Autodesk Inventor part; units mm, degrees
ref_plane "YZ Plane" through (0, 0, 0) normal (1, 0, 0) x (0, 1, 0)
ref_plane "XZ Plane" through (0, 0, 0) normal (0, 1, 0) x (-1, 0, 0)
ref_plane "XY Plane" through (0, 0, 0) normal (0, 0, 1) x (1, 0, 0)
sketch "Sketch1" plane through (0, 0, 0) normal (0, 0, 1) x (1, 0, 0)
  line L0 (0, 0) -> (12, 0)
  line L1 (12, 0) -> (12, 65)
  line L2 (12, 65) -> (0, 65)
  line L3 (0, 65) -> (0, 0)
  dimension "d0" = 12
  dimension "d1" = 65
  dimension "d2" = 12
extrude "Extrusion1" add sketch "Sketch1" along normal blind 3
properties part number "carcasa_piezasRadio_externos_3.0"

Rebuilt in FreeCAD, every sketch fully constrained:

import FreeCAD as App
import Part
import Sketcher
from FreeCAD import Vector
Q = App.Units.Quantity

doc = App.newDocument("Part")
body = doc.addObject("PartDesign::Body", "Body")

# Sketch on XY plane
sketch1 = body.newObject("Sketcher::SketchObject", "Sketch")
sketch1.AttachmentSupport = (doc.getObject("XY_Plane"), [""])
sketch1.MapMode = "FlatFace"
sketch1.addGeometry(Part.LineSegment(Vector(0, 65, 0), Vector(0, 0, 0)), False)
sketch1.addGeometry(Part.LineSegment(Vector(0, 0, 0), Vector(12, 0, 0)), False)
sketch1.addGeometry(Part.LineSegment(Vector(12, 0, 0), Vector(12, 65, 0)), False)
sketch1.addGeometry(Part.LineSegment(Vector(12, 65, 0), Vector(0, 65, 0)), False)
sketch1.addConstraint(Sketcher.Constraint("Coincident", 0, 2, 1, 1))
sketch1.addConstraint(Sketcher.Constraint("Coincident", 1, 2, 2, 1))
sketch1.addConstraint(Sketcher.Constraint("Coincident", 2, 2, 3, 1))
sketch1.addConstraint(Sketcher.Constraint("Coincident", 3, 2, 0, 1))
sketch1.addConstraint(Sketcher.Constraint("Vertical", 0))
sketch1.addConstraint(Sketcher.Constraint("Horizontal", 1))
sketch1.addConstraint(Sketcher.Constraint("Vertical", 2))
sketch1.addConstraint(Sketcher.Constraint("Horizontal", 3))
sketch1.addConstraint(Sketcher.Constraint("Coincident", 0, 2, -1, 1))
sketch1.addConstraint(Sketcher.Constraint("DistanceX", 1, 1, 1, 2, Q("12 mm")))
sketch1.addConstraint(Sketcher.Constraint("DistanceY", 0, 2, 0, 1, Q("65 mm")))
pad1 = body.newObject("PartDesign::Pad", "Pad")
pad1.Profile = sketch1
pad1.Length = 3

doc.recompute()
